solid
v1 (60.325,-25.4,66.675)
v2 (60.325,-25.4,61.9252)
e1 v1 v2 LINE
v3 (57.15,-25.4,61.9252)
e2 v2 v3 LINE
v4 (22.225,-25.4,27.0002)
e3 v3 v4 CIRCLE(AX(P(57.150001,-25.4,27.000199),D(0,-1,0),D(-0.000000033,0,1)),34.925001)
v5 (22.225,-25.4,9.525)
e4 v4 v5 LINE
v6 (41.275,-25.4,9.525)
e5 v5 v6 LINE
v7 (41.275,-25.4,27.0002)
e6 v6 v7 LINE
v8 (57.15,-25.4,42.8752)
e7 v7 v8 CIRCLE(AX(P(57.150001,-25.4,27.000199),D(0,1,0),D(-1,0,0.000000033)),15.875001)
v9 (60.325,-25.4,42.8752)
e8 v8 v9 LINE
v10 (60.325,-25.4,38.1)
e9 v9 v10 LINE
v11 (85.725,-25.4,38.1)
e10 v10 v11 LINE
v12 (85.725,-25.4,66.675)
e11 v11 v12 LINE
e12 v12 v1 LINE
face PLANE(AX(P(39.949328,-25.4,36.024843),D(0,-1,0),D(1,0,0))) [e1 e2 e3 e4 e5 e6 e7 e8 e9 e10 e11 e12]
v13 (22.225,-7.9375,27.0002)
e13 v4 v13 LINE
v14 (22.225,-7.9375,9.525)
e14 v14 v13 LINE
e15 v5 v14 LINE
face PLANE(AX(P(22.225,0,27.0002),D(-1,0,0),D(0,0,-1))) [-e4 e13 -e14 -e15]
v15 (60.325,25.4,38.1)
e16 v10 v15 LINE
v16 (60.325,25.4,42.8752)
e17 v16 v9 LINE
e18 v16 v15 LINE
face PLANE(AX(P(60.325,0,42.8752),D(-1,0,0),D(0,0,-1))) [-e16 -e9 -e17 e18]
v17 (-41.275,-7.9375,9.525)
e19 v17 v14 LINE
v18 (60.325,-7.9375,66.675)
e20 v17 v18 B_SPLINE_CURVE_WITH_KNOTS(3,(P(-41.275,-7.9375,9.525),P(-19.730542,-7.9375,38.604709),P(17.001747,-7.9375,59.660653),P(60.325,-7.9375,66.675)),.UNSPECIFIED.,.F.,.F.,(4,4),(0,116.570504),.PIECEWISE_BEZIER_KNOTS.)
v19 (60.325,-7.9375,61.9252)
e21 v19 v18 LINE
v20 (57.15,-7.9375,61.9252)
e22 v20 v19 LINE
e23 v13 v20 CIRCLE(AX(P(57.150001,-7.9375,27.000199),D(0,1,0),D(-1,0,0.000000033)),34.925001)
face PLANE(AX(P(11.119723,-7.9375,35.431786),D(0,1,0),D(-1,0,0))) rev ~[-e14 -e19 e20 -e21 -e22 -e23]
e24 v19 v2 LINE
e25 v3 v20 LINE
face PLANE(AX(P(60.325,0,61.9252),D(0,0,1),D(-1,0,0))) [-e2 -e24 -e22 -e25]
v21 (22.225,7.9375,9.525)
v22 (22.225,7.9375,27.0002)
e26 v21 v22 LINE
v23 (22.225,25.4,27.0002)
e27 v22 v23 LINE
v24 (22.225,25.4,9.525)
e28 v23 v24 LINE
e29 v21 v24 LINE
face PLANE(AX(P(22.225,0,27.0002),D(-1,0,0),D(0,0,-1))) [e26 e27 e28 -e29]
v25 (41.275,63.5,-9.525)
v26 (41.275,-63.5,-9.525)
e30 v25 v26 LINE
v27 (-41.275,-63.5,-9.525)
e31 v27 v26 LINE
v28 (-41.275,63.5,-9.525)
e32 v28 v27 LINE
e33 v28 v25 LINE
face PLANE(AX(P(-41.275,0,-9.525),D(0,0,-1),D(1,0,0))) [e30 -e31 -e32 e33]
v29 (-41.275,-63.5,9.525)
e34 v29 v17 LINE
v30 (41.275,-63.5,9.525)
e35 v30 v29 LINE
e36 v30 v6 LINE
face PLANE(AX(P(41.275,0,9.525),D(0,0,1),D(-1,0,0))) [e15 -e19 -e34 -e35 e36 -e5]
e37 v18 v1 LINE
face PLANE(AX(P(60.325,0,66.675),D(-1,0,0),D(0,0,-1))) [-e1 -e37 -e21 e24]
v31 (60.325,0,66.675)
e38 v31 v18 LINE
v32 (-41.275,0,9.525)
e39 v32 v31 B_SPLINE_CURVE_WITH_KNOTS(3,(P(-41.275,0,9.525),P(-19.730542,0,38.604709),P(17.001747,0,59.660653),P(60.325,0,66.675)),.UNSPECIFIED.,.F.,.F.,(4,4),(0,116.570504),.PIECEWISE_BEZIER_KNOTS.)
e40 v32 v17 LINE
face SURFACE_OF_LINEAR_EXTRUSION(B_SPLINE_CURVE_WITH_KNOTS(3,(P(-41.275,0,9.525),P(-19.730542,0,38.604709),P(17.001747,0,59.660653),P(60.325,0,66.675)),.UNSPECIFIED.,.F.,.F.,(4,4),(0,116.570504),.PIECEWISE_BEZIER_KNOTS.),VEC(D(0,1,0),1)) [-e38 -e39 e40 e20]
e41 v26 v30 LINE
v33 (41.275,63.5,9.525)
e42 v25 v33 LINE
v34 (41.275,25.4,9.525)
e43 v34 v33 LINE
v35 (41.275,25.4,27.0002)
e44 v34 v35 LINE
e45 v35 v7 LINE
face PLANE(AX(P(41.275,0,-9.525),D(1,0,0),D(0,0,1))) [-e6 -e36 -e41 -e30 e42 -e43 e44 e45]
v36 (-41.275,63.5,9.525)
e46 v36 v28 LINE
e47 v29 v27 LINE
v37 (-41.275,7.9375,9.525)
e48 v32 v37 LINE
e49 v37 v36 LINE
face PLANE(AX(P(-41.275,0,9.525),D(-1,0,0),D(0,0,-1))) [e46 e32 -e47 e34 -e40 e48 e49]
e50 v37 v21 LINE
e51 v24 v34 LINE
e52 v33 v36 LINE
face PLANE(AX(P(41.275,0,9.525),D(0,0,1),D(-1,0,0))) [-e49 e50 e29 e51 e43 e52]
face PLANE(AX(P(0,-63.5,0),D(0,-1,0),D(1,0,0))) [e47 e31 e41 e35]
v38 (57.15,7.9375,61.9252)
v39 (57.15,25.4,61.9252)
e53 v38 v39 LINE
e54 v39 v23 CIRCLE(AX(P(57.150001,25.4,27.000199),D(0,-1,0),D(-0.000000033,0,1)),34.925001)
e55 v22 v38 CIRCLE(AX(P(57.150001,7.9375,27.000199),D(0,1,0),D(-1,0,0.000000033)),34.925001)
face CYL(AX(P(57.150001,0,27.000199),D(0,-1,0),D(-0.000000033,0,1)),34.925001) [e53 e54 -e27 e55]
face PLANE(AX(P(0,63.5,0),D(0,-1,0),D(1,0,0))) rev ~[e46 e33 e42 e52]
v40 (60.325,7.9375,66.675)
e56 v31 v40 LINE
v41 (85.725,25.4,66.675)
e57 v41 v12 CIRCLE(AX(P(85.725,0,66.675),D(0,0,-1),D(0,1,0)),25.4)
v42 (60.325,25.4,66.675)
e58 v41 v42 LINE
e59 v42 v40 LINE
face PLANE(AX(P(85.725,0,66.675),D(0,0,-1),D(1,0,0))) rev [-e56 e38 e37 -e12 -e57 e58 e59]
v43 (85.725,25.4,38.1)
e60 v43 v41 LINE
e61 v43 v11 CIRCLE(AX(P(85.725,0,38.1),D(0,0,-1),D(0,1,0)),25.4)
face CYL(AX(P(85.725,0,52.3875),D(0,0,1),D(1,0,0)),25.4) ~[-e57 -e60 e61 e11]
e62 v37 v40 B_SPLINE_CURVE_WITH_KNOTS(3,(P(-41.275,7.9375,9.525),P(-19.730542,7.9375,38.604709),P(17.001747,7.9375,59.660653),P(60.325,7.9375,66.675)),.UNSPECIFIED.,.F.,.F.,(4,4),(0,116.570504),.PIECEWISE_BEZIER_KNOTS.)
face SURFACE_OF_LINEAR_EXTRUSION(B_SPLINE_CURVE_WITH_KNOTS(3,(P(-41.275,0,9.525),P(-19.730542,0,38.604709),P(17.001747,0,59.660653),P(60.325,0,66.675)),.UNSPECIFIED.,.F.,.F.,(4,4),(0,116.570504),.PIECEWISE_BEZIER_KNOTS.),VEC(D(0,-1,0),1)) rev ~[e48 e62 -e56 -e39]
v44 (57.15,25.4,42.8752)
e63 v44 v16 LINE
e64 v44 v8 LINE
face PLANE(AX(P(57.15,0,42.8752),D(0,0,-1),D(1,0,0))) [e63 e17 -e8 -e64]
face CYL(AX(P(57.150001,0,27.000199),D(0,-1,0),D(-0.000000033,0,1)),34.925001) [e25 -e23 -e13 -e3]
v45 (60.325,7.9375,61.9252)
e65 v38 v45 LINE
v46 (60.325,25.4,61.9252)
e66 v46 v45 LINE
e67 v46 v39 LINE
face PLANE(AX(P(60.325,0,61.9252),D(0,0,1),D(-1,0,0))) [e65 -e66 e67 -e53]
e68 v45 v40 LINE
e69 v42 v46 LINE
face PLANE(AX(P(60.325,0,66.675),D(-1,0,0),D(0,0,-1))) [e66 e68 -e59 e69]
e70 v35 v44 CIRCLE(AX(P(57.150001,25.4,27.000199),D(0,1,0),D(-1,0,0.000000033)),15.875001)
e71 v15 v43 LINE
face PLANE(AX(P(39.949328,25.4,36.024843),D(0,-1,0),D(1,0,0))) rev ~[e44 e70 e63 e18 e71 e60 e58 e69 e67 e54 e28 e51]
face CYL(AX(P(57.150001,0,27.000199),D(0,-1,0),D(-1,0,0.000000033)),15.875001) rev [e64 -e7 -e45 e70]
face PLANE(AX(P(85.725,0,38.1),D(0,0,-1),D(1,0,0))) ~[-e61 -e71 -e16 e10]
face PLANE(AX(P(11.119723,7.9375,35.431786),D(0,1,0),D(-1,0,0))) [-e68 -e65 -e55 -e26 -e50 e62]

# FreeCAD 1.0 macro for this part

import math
import FreeCAD as App
import Part
import Sketcher
Q = App.Units.Quantity

doc = App.newDocument("Part")
params = doc.addObject("Spreadsheet::Sheet", "Params")
for row, (alias, value) in enumerate([
    ("sketch1_width", "3.25 in"),
    ("sketch1_height", "0.75 in"),
    ("pad1_length", "5 in"),
    ("sketch2_width", "1 in"),
    ("sketch2_radius", "0.625 in"),
    ("sketch2_radius2", "1.375 in"),
    ("sketch2_width2", "0.125 in"),
    ("sketch2_height", "0.688 in"),
    ("pad2_length", "2 in"),
    ("sketch3_width", "2.5 in"),
    ("sketch3_radius", "1.375 in"),
    ("sketch3_height", "0.688 in"),
    ("pad3_length", "0.625 in"),
    ("sketch4_width", "1 in"),
    ("sketch4_height", "1.125 in"),
    ("revolution_angle", "360 deg"),
], start=1):
    params.set(f"A{row}", alias)
    params.set(f"B{row}", "=" + value)
    params.setAlias(f"B{row}", alias)

body = doc.addObject("PartDesign::Body", "Body")

# Sketch on XZ plane
sketch1 = doc.addObject("Sketcher::SketchObject", "Sketch")
body.addObject(sketch1)
sketch1.AttachmentSupport = (doc.XZ_Plane, [""])
sketch1.MapMode = "FlatFace"
sketch1.addGeometry([
    Part.LineSegment(App.Vector(-41, 10, 0), App.Vector(-41, -10, 0)),
    Part.LineSegment(App.Vector(-41, -10, 0), App.Vector(41, -10, 0)),
    Part.LineSegment(App.Vector(41, -10, 0), App.Vector(41, 10, 0)),
    Part.LineSegment(App.Vector(41, 10, 0), App.Vector(-41, 10, 0)),
], False)
sketch1.addConstraint([
    Sketcher.Constraint("Coincident", 0, 2, 1, 1),
    Sketcher.Constraint("Coincident", 1, 2, 2, 1),
    Sketcher.Constraint("Coincident", 2, 2, 3, 1),
    Sketcher.Constraint("Coincident", 3, 2, 0, 1),
    Sketcher.Constraint("Vertical", 0),
    Sketcher.Constraint("Horizontal", 1),
    Sketcher.Constraint("Vertical", 2),
    Sketcher.Constraint("Horizontal", 3),
    Sketcher.Constraint("Symmetric", 0, 2, 2, 2, -1, 1),
    Sketcher.Constraint("DistanceX", 1, 1, 1, 2, Q("3.25 in")),
    Sketcher.Constraint("DistanceY", 0, 2, 0, 1, Q("0.75 in")),
])
sketch1.setExpression("Constraints[9]", "Params.sketch1_width")
sketch1.setExpression("Constraints[10]", "Params.sketch1_height")
pad1 = doc.addObject("PartDesign::Pad", "Pad")
body.addObject(pad1)
pad1.Profile = sketch1
pad1.setExpression("Length", "Params.pad1_length")
pad1.Midplane = True

# Sketch on XZ plane
sketch2 = doc.addObject("Sketcher::SketchObject", "Sketch001")
body.addObject(sketch2)
sketch2.AttachmentSupport = (doc.XZ_Plane, [""])
sketch2.MapMode = "FlatFace"
sketch2.addGeometry([
    Part.LineSegment(App.Vector(22.2, 9.5, 0), App.Vector(41.3, 9.5, 0)),  # 0
    Part.LineSegment(App.Vector(41.3, 9.5, 0), App.Vector(41.3, 27, 0)),  # 1
    Part.ArcOfCircle(Part.Circle(App.Vector(57.2, 27, 0), App.Vector(0, 0, 1), 15.9), math.radians(90), math.radians(180)),  # 2
    Part.LineSegment(App.Vector(57.1, 42.9, 0), App.Vector(60.3, 42.9, 0)),  # 3
    Part.LineSegment(App.Vector(60.3, 42.9, 0), App.Vector(60.3, 38.1, 0)),  # 4
    Part.LineSegment(App.Vector(60.3, 38.1, 0), App.Vector(85.7, 38.1, 0)),  # 5
    Part.LineSegment(App.Vector(85.7, 38.1, 0), App.Vector(85.7, 66.7, 0)),  # 6
    Part.LineSegment(App.Vector(85.7, 66.7, 0), App.Vector(60.3, 66.7, 0)),  # 7
    Part.LineSegment(App.Vector(60.3, 66.7, 0), App.Vector(60.3, 61.9, 0)),  # 8
    Part.LineSegment(App.Vector(60.3, 61.9, 0), App.Vector(57.1, 61.9, 0)),  # 9
    Part.ArcOfCircle(Part.Circle(App.Vector(57.2, 27, 0), App.Vector(0, 0, 1), 34.9), math.radians(90), math.radians(180)),  # 10
    Part.LineSegment(App.Vector(22.2, 27, 0), App.Vector(22.2, 9.5, 0)),  # 11
], False)
sketch2.addConstraint([
    Sketcher.Constraint("Coincident", 0, 2, 1, 1),
    Sketcher.Constraint("Tangent", 1, 2, 2, 2),
    Sketcher.Constraint("Tangent", 2, 1, 3, 1),
    Sketcher.Constraint("Coincident", 3, 2, 4, 1),
    Sketcher.Constraint("Coincident", 4, 2, 5, 1),
    Sketcher.Constraint("Coincident", 5, 2, 6, 1),
    Sketcher.Constraint("Coincident", 6, 2, 7, 1),
    Sketcher.Constraint("Coincident", 7, 2, 8, 1),
    Sketcher.Constraint("Coincident", 8, 2, 9, 1),
    Sketcher.Constraint("Tangent", 9, 2, 10, 1),
    Sketcher.Constraint("Tangent", 10, 2, 11, 1),
    Sketcher.Constraint("Coincident", 11, 2, 0, 1),
    Sketcher.Constraint("Horizontal", 0),
    Sketcher.Constraint("Vertical", 1),
    Sketcher.Constraint("Horizontal", 3),
    Sketcher.Constraint("Vertical", 4),
    Sketcher.Constraint("Horizontal", 5),
    Sketcher.Constraint("Vertical", 6),
    Sketcher.Constraint("Horizontal", 7),
    Sketcher.Constraint("Vertical", 8),
    Sketcher.Constraint("Horizontal", 9),
    Sketcher.Constraint("Vertical", 11),
    Sketcher.Constraint("Coincident", 10, 3, 2, 3),
    Sketcher.Constraint("Vertical", 4, 2, 7, 2),
    Sketcher.Constraint("DistanceX", 5, 1, 5, 2, Q("1 in")),
    Sketcher.Constraint("Radius", 2, Q("0.625 in")),
    Sketcher.Constraint("Radius", 10, Q("1.375 in")),
    Sketcher.Constraint("DistanceY", -1, 1, 4, 2, Q("1.5 in")),
    Sketcher.Constraint("DistanceX", 3, 1, 3, 2, Q("0.125 in")),
    Sketcher.Constraint("DistanceY", 1, 1, 1, 2, Q("0.688 in")),
    Sketcher.Constraint("DistanceY", 4, 2, 4, 1, Q("0.188 in")),
    Sketcher.Constraint("DistanceY", 6, 1, 6, 2, Q("1.125 in")),
    Sketcher.Constraint("DistanceX", -1, 1, 2, 3, Q("2.25 in")),
])
sketch2.setExpression("Constraints[24]", "Params.sketch2_width")
sketch2.setExpression("Constraints[25]", "Params.sketch2_radius")
sketch2.setExpression("Constraints[26]", "Params.sketch2_radius2")
sketch2.setExpression("Constraints[28]", "Params.sketch2_width2")
sketch2.setExpression("Constraints[29]", "Params.sketch2_height")
pad2 = doc.addObject("PartDesign::Pad", "Pad001")
body.addObject(pad2)
pad2.Profile = sketch2
pad2.setExpression("Length", "Params.pad2_length")
pad2.Midplane = True

# Sketch on XZ plane
sketch3 = doc.addObject("Sketcher::SketchObject", "Sketch002")
body.addObject(sketch3)
sketch3.AttachmentSupport = (doc.XZ_Plane, [""])
sketch3.MapMode = "FlatFace"
sketch3.addGeometry([
    Part.BSplineCurve([App.Vector(-41.275, 9.525, 0), App.Vector(-19.730542, 38.604709, 0), App.Vector(17.001747, 59.660653, 0), App.Vector(60.325, 66.675, 0)], [4, 4], [0, 116.570504], False, 3, [1, 1, 1, 1], False),  # 0
    Part.LineSegment(App.Vector(-41.275, 9.525, 0), App.Vector(22.225, 9.525, 0)),  # 1
    Part.LineSegment(App.Vector(22.225, 9.525, 0), App.Vector(22.225, 27.0002, 0)),  # 2
    Part.ArcOfCircle(Part.Circle(App.Vector(57.150001, 27.000199, 0), App.Vector(0, 0, 1), 34.925001), math.radians(90.000002), math.radians(179.999998)),  # 3
    Part.LineSegment(App.Vector(57.15, 61.9252, 0), App.Vector(60.325, 61.9252, 0)),  # 4
    Part.LineSegment(App.Vector(60.325, 61.9252, 0), App.Vector(60.325, 66.675, 0)),  # 5
], False)
sketch3.addConstraint([
    Sketcher.Constraint("Block", 0),
    Sketcher.Constraint("Coincident", 0, 1, 1, 1),
    Sketcher.Constraint("Coincident", 1, 2, 2, 1),
    Sketcher.Constraint("Tangent", 2, 2, 3, 2),
    Sketcher.Constraint("Tangent", 3, 1, 4, 1),
    Sketcher.Constraint("Coincident", 4, 2, 5, 1),
    Sketcher.Constraint("Coincident", 5, 2, 0, 2),
    Sketcher.Constraint("Horizontal", 1),
    Sketcher.Constraint("Vertical", 2),
    Sketcher.Constraint("Horizontal", 4),
    Sketcher.Constraint("Vertical", 5),
    Sketcher.Constraint("DistanceX", 1, 1, 1, 2, Q("2.5 in")),
    Sketcher.Constraint("Radius", 3, Q("1.375 in")),
    Sketcher.Constraint("DistanceY", 2, 1, 2, 2, Q("0.688 in")),
])
sketch3.setExpression("Constraints[11]", "Params.sketch3_width")
sketch3.setExpression("Constraints[12]", "Params.sketch3_radius")
sketch3.setExpression("Constraints[13]", "Params.sketch3_height")
pad3 = doc.addObject("PartDesign::Pad", "Pad002")
body.addObject(pad3)
pad3.Profile = sketch3
pad3.setExpression("Length", "Params.pad3_length")
pad3.Midplane = True

# Sketch on XZ plane
sketch4 = doc.addObject("Sketcher::SketchObject", "Sketch003")
body.addObject(sketch4)
sketch4.AttachmentSupport = (doc.XZ_Plane, [""])
sketch4.MapMode = "FlatFace"
sketch4.addGeometry([
    Part.LineSegment(App.Vector(86, 67, 0), App.Vector(86, 38, 0)),
    Part.LineSegment(App.Vector(86, 38, 0), App.Vector(111, 38, 0)),
    Part.LineSegment(App.Vector(111, 38, 0), App.Vector(111, 67, 0)),
    Part.LineSegment(App.Vector(111, 67, 0), App.Vector(86, 67, 0)),
], False)
sketch4.addGeometry(Part.LineSegment(App.Vector(86, 67, 0), App.Vector(86, 38, 0)), True)  # axis
sketch4.addConstraint([
    Sketcher.Constraint("Coincident", 0, 2, 1, 1),
    Sketcher.Constraint("Coincident", 1, 2, 2, 1),
    Sketcher.Constraint("Coincident", 2, 2, 3, 1),
    Sketcher.Constraint("Coincident", 3, 2, 0, 1),
    Sketcher.Constraint("Vertical", 0),
    Sketcher.Constraint("Horizontal", 1),
    Sketcher.Constraint("Vertical", 2),
    Sketcher.Constraint("Horizontal", 3),
    Sketcher.Constraint("Vertical", 4),
    Sketcher.Constraint("Coincident", 4, 1, 3, 2),
    Sketcher.Constraint("Horizontal", 1, 2, 4, 2),
    Sketcher.Constraint("DistanceX", 1, 1, 1, 2, Q("1 in")),
    Sketcher.Constraint("DistanceY", -1, 1, 0, 2, Q("1.5 in")),
    Sketcher.Constraint("DistanceY", 0, 2, 0, 1, Q("1.125 in")),
    Sketcher.Constraint("DistanceX", -1, 1, 0, 2, Q("3.375 in")),
])
sketch4.setExpression("Constraints[11]", "Params.sketch4_width")
sketch4.setExpression("Constraints[13]", "Params.sketch4_height")
revolution = doc.addObject("PartDesign::Revolution", "Revolution")
body.addObject(revolution)
revolution.Profile = sketch4
revolution.ReferenceAxis = (sketch4, ["Axis0"])
revolution.setExpression("Angle", "Params.revolution_angle")

doc.recompute()
